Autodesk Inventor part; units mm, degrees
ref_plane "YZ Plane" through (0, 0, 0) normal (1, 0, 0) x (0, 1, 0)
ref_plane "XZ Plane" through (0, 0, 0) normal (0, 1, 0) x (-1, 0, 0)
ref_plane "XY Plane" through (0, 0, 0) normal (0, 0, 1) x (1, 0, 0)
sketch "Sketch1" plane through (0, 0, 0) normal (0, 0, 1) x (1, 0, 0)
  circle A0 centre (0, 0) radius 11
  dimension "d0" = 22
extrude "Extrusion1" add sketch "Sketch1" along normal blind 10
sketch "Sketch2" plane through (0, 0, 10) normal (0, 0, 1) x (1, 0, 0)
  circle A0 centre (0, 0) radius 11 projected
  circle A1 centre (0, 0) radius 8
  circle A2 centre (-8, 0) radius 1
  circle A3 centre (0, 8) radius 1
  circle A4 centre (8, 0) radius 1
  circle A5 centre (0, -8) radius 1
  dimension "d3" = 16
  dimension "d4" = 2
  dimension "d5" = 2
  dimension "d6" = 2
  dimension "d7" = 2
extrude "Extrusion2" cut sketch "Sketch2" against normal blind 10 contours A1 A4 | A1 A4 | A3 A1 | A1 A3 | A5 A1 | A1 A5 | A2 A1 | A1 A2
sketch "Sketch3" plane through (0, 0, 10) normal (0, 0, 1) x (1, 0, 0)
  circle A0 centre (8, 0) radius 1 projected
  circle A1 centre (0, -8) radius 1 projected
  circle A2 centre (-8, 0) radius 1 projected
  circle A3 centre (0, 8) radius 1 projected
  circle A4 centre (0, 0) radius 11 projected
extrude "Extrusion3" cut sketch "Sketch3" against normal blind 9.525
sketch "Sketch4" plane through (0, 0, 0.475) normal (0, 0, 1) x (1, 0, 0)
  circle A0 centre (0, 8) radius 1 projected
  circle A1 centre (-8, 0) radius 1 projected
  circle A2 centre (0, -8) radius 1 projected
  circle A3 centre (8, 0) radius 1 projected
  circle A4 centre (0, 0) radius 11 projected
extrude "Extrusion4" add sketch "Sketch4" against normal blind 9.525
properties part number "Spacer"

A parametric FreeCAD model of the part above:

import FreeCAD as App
import Part
import Sketcher

doc = App.newDocument("Part")
params = doc.addObject("Spreadsheet::Sheet", "Params")
for row, (alias, value) in enumerate([
    ("sketch1_diameter", "22 mm"),
    ("pad1_length", "10 mm"),
    ("sketch2_diameter", "2 mm"),
    ("pocket1_length", "10 mm"),
    ("sketch3_diameter", "22 mm"),
    ("sketch3_diameter2", "2 mm"),
    ("pocket2_length", "9.525 mm"),
    ("sketch4_diameter", "22 mm"),
    ("sketch4_diameter2", "2 mm"),
    ("pad2_length", "9.525 mm"),
], start=1):
    params.set(f"A{row}", alias)
    params.set(f"B{row}", "=" + value)
    params.setAlias(f"B{row}", alias)

body = doc.addObject("PartDesign::Body", "Body")

# Sketch on XY plane
sketch1 = doc.addObject("Sketcher::SketchObject", "Sketch")
body.addObject(sketch1)
sketch1.AttachmentSupport = (doc.XY_Plane, [""])
sketch1.MapMode = "FlatFace"
sketch1.addGeometry(Part.Circle(App.Vector(0, 0, 0), App.Vector(0, 0, 1), 11), False)
sketch1.addConstraint(Sketcher.Constraint("Coincident", 0, 3, -1, 1))
sketch1.addConstraint(Sketcher.Constraint("Diameter", 0, 22.0))
sketch1.setExpression("Constraints[1]", "Params.sketch1_diameter")
pad1 = doc.addObject("PartDesign::Pad", "Pad")
body.addObject(pad1)
pad1.Profile = sketch1
pad1.setExpression("Length", "Params.pad1_length")

# Sketch on XY plane
sketch2 = doc.addObject("Sketcher::SketchObject", "Sketch001")
body.addObject(sketch2)
sketch2.AttachmentSupport = (doc.XY_Plane, [""])
sketch2.MapMode = "FlatFace"
sketch2.AttachmentOffset = App.Placement(App.Vector(0, 0, 10), App.Rotation())
sketch2.addGeometry(Part.Circle(App.Vector(8, 0, 0), App.Vector(0, 0, 1), 1), False)
sketch2.addGeometry(Part.Circle(App.Vector(0, 8, 0), App.Vector(0, 0, 1), 1), False)
sketch2.addGeometry(Part.Circle(App.Vector(0, -8, 0), App.Vector(0, 0, 1), 1), False)
sketch2.addGeometry(Part.Circle(App.Vector(-8, 0, 0), App.Vector(0, 0, 1), 1), False)
sketch2.addConstraint(Sketcher.Constraint("Equal", 0, 1))
sketch2.addConstraint(Sketcher.Constraint("Equal", 1, 2))
sketch2.addConstraint(Sketcher.Constraint("Equal", 2, 3))
sketch2.addConstraint(Sketcher.Constraint("Symmetric", 1, 3, 2, 3, -1, 1))
sketch2.addConstraint(Sketcher.Constraint("Symmetric", 0, 3, 3, 3, -1, 1))
sketch2.addConstraint(Sketcher.Constraint("PointOnObject", 0, 3, -1))
sketch2.addConstraint(Sketcher.Constraint("PointOnObject", 1, 3, -2))
sketch2.addConstraint(Sketcher.Constraint("Diameter", 0, 2.0))
sketch2.addConstraint(Sketcher.Constraint("DistanceY", 2, 3, 1, 3, 16.0))
sketch2.addConstraint(Sketcher.Constraint("DistanceX", 3, 3, 0, 3, 16.0))
sketch2.setExpression("Constraints[7]", "Params.sketch2_diameter")
pocket1 = doc.addObject("PartDesign::Pocket", "Pocket")
body.addObject(pocket1)
pocket1.Profile = sketch2
pocket1.setExpression("Length", "Params.pocket1_length")

# Sketch on XY plane
sketch3 = doc.addObject("Sketcher::SketchObject", "Sketch002")
body.addObject(sketch3)
sketch3.AttachmentSupport = (doc.XY_Plane, [""])
sketch3.MapMode = "FlatFace"
sketch3.AttachmentOffset = App.Placement(App.Vector(0, 0, 10), App.Rotation())
sketch3.addGeometry(Part.Circle(App.Vector(0, 0, 0), App.Vector(0, 0, 1), 11), False)
sketch3.addGeometry(Part.Circle(App.Vector(0, -8, 0), App.Vector(0, 0, 1), 1), False)
sketch3.addGeometry(Part.Circle(App.Vector(-8, 0, 0), App.Vector(0, 0, 1), 1), False)
sketch3.addGeometry(Part.Circle(App.Vector(8, 0, 0), App.Vector(0, 0, 1), 1), False)
sketch3.addGeometry(Part.Circle(App.Vector(0, 8, 0), App.Vector(0, 0, 1), 1), False)
sketch3.addConstraint(Sketcher.Constraint("Coincident", 0, 3, -1, 1))
sketch3.addConstraint(Sketcher.Constraint("Equal", 1, 2))
sketch3.addConstraint(Sketcher.Constraint("Equal", 2, 3))
sketch3.addConstraint(Sketcher.Constraint("Equal", 3, 4))
sketch3.addConstraint(Sketcher.Constraint("Symmetric", 2, 3, 3, 3, -1, 1))
sketch3.addConstraint(Sketcher.Constraint("Symmetric", 1, 3, 4, 3, -1, 1))
sketch3.addConstraint(Sketcher.Constraint("PointOnObject", 1, 3, -2))
sketch3.addConstraint(Sketcher.Constraint("PointOnObject", 2, 3, -1))
sketch3.addConstraint(Sketcher.Constraint("Diameter", 0, 22.0))
sketch3.addConstraint(Sketcher.Constraint("Diameter", 1, 2.0))
sketch3.addConstraint(Sketcher.Constraint("DistanceY", 1, 3, -1, 1, 8.0))
sketch3.addConstraint(Sketcher.Constraint("DistanceX", 2, 3, -1, 1, 8.0))
sketch3.setExpression("Constraints[8]", "Params.sketch3_diameter")
sketch3.setExpression("Constraints[9]", "Params.sketch3_diameter2")
pocket2 = doc.addObject("PartDesign::Pocket", "Pocket001")
body.addObject(pocket2)
pocket2.Profile = sketch3
pocket2.setExpression("Length", "Params.pocket2_length")

# Sketch on XY plane
sketch4 = doc.addObject("Sketcher::SketchObject", "Sketch003")
body.addObject(sketch4)
sketch4.AttachmentSupport = (doc.XY_Plane, [""])
sketch4.MapMode = "FlatFace"
sketch4.AttachmentOffset = App.Placement(App.Vector(0, 0, 0.475), App.Rotation())
sketch4.addGeometry(Part.Circle(App.Vector(0, 0, 0), App.Vector(0, 0, 1), 11), False)
sketch4.addGeometry(Part.Circle(App.Vector(0, -8, 0), App.Vector(0, 0, 1), 1), False)
sketch4.addGeometry(Part.Circle(App.Vector(-8, 0, 0), App.Vector(0, 0, 1), 1), False)
sketch4.addGeometry(Part.Circle(App.Vector(8, 0, 0), App.Vector(0, 0, 1), 1), False)
sketch4.addGeometry(Part.Circle(App.Vector(0, 8, 0), App.Vector(0, 0, 1), 1), False)
sketch4.addConstraint(Sketcher.Constraint("Coincident", 0, 3, -1, 1))
sketch4.addConstraint(Sketcher.Constraint("Equal", 1, 2))
sketch4.addConstraint(Sketcher.Constraint("Equal", 2, 3))
sketch4.addConstraint(Sketcher.Constraint("Equal", 3, 4))
sketch4.addConstraint(Sketcher.Constraint("Symmetric", 2, 3, 3, 3, -1, 1))
sketch4.addConstraint(Sketcher.Constraint("Symmetric", 1, 3, 4, 3, -1, 1))
sketch4.addConstraint(Sketcher.Constraint("PointOnObject", 1, 3, -2))
sketch4.addConstraint(Sketcher.Constraint("PointOnObject", 2, 3, -1))
sketch4.addConstraint(Sketcher.Constraint("Diameter", 0, 22.0))
sketch4.addConstraint(Sketcher.Constraint("Diameter", 1, 2.0))
sketch4.addConstraint(Sketcher.Constraint("DistanceY", 1, 3, -1, 1, 8.0))
sketch4.addConstraint(Sketcher.Constraint("DistanceX", 2, 3, -1, 1, 8.0))
sketch4.setExpression("Constraints[8]", "Params.sketch4_diameter")
sketch4.setExpression("Constraints[9]", "Params.sketch4_diameter2")
pad2 = doc.addObject("PartDesign::Pad", "Pad001")
body.addObject(pad2)
pad2.Profile = sketch4
pad2.setExpression("Length", "Params.pad2_length")
pad2.Reversed = True

doc.recompute()
